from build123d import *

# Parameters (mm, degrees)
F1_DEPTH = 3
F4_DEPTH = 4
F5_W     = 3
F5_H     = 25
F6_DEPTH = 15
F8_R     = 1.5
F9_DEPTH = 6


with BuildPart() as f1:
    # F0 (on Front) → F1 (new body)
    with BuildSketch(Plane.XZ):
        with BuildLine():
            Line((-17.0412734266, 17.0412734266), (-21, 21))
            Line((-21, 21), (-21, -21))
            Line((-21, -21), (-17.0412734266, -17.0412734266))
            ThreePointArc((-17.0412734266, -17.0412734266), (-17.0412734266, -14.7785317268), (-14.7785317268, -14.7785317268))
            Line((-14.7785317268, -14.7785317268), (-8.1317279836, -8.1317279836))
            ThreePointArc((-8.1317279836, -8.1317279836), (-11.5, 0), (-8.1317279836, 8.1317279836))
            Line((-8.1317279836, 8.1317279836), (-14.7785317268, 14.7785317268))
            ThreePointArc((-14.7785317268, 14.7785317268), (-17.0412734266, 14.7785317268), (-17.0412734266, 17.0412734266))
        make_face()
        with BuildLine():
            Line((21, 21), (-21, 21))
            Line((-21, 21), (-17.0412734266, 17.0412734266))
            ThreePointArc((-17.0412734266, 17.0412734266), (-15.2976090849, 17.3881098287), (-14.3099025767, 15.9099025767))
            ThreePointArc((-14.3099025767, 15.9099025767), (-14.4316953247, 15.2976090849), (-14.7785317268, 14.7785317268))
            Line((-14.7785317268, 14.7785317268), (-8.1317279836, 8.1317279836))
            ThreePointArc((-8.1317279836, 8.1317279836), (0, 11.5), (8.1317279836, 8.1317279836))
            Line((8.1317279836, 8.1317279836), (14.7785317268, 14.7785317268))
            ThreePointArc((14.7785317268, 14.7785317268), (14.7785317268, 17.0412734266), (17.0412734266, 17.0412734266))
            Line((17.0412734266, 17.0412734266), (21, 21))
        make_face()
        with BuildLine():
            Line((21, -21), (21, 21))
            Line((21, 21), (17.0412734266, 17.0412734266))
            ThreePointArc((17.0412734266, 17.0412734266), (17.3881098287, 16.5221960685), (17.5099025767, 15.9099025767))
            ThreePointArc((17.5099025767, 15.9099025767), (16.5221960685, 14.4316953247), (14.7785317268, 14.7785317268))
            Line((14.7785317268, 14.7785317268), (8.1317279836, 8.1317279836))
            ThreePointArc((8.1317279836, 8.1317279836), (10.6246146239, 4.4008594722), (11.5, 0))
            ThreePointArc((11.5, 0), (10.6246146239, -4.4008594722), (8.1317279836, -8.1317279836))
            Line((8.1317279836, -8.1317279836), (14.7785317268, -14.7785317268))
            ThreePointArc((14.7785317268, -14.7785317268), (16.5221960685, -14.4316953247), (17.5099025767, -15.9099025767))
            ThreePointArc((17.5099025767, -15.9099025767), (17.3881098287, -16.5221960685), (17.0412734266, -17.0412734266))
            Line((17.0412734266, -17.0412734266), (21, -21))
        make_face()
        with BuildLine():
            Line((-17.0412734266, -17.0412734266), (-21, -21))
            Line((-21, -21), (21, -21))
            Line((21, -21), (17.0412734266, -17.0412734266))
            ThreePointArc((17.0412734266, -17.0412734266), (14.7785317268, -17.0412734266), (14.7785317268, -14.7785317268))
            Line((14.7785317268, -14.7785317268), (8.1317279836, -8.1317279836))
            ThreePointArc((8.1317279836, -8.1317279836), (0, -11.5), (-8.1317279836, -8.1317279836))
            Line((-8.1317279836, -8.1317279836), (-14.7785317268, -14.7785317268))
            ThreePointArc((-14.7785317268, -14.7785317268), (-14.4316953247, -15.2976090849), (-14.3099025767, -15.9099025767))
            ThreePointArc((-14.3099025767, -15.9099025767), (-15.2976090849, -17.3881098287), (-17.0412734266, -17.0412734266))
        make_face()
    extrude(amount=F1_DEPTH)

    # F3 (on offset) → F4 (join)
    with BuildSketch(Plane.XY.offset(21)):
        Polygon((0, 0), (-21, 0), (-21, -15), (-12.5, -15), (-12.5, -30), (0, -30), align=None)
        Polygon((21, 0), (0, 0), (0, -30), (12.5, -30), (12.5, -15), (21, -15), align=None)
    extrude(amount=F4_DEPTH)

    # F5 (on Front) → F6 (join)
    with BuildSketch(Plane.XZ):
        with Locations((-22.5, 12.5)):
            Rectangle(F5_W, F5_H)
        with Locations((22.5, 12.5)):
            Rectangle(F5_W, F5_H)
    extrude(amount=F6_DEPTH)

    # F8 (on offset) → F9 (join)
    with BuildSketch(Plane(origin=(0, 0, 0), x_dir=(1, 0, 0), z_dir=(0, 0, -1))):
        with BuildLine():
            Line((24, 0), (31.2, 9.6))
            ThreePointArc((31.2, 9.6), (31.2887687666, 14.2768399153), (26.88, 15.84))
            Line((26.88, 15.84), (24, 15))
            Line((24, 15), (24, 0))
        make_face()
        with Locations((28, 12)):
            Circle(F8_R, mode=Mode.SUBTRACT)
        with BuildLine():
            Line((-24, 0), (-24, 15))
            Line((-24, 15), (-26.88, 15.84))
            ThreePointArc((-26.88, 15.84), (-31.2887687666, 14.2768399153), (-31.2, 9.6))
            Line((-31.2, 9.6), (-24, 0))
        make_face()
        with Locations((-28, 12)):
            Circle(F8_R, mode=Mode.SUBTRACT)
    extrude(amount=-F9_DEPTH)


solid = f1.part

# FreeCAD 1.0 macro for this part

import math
import FreeCAD as App
import Part
import Sketcher

V = App.Vector
Q = App.Units.Quantity

doc = App.newDocument("Part")
body = doc.addObject("PartDesign::Body", "Body")

# Sketch on XZ plane
sketch1 = doc.addObject("Sketcher::SketchObject", "Sketch")
body.addObject(sketch1)
sketch1.AttachmentSupport = (doc.XZ_Plane, [""])
sketch1.MapMode = "FlatFace"
sketch1.addGeometry([
    Part.LineSegment(V(-21, 21, 0), V(-21, -21, 0)),  # 0
    Part.LineSegment(V(-21, -21, 0), V(21, -21, 0)),  # 1
    Part.LineSegment(V(21, -21, 0), V(21, 21, 0)),  # 2
    Part.LineSegment(V(21, 21, 0), V(-21, 21, 0)),  # 3
    Part.ArcOfCircle(Part.Circle(V(-15.9, -15.9, 0), V(0, 0, 1), 1.6), math.radians(45), math.radians(225)),  # 4
    Part.ArcOfCircle(Part.Circle(V(-15.9, -15.9, 0), V(0, 0, 1), 1.6), math.radians(0), math.radians(45)),  # 5
    Part.ArcOfCircle(Part.Circle(V(-15.9, -15.9, 0), V(0, 0, 1), 1.6), math.radians(-135), math.radians(0)),  # 6
    Part.ArcOfCircle(Part.Circle(V(0, 0, 0), V(0, 0, 1), 11.5), math.radians(135), math.radians(225)),  # 7
    Part.ArcOfCircle(Part.Circle(V(0, 0, 0), V(0, 0, 1), 11.5), math.radians(45), math.radians(135)),  # 8
    Part.ArcOfCircle(Part.Circle(V(0, 0, 0), V(0, 0, 1), 11.5), math.radians(0), math.radians(45)),  # 9
    Part.ArcOfCircle(Part.Circle(V(0, 0, 0), V(0, 0, 1), 11.5), math.radians(-45), math.radians(0)),  # 10
    Part.ArcOfCircle(Part.Circle(V(0, 0, 0), V(0, 0, 1), 11.5), math.radians(-135), math.radians(-45)),  # 11
    Part.ArcOfCircle(Part.Circle(V(15.9, -15.9, 0), V(0, 0, 1), 1.6), math.radians(0), math.radians(135)),  # 12
    Part.ArcOfCircle(Part.Circle(V(15.9, -15.9, 0), V(0, 0, 1), 1.6), math.radians(-45), math.radians(0)),  # 13
    Part.ArcOfCircle(Part.Circle(V(15.9, -15.9, 0), V(0, 0, 1), 1.6), math.radians(135), math.radians(315)),  # 14
    Part.ArcOfCircle(Part.Circle(V(15.9, 15.9, 0), V(0, 0, 1), 1.6), math.radians(45), math.radians(225)),  # 15
    Part.ArcOfCircle(Part.Circle(V(15.9, 15.9, 0), V(0, 0, 1), 1.6), math.radians(0), math.radians(45)),  # 16
    Part.ArcOfCircle(Part.Circle(V(15.9, 15.9, 0), V(0, 0, 1), 1.6), math.radians(-135), math.radians(0)),  # 17
    Part.ArcOfCircle(Part.Circle(V(-15.9, 15.9, 0), V(0, 0, 1), 1.6), math.radians(135), math.radians(315)),  # 18
    Part.ArcOfCircle(Part.Circle(V(-15.9, 15.9, 0), V(0, 0, 1), 1.6), math.radians(0), math.radians(135)),  # 19
    Part.ArcOfCircle(Part.Circle(V(-15.9, 15.9, 0), V(0, 0, 1), 1.6), math.radians(-45), math.radians(0)),  # 20
], False)
sketch1.addConstraint([
    Sketcher.Constraint("Coincident", 0, 2, 1, 1),
    Sketcher.Constraint("Coincident", 1, 2, 2, 1),
    Sketcher.Constraint("Coincident", 2, 2, 3, 1),
    Sketcher.Constraint("Coincident", 3, 2, 0, 1),
    Sketcher.Constraint("Tangent", 4, 1, 5, 2),
    Sketcher.Constraint("Tangent", 5, 1, 6, 2),
    Sketcher.Constraint("Tangent", 6, 1, 4, 2),
    Sketcher.Constraint("Tangent", 7, 1, 8, 2),
    Sketcher.Constraint("Tangent", 8, 1, 9, 2),
    Sketcher.Constraint("Tangent", 9, 1, 10, 2),
    Sketcher.Constraint("Tangent", 10, 1, 11, 2),
    Sketcher.Constraint("Tangent", 11, 1, 7, 2),
    Sketcher.Constraint("Tangent", 12, 1, 13, 2),
    Sketcher.Constraint("Tangent", 13, 1, 14, 2),
    Sketcher.Constraint("Tangent", 14, 1, 12, 2),
    Sketcher.Constraint("Tangent", 15, 1, 16, 2),
    Sketcher.Constraint("Tangent", 16, 1, 17, 2),
    Sketcher.Constraint("Tangent", 17, 1, 15, 2),
    Sketcher.Constraint("Tangent", 18, 1, 19, 2),
    Sketcher.Constraint("Tangent", 19, 1, 20, 2),
    Sketcher.Constraint("Tangent", 20, 1, 18, 2),
    Sketcher.Constraint("Vertical", 0),
    Sketcher.Constraint("Horizontal", 1),
    Sketcher.Constraint("Vertical", 2),
    Sketcher.Constraint("Horizontal", 3),
    Sketcher.Constraint("Coincident", 7, 3, -1, 1),
    Sketcher.Constraint("Coincident", 9, 3, -1, 1),
    Sketcher.Constraint("Equal", 6, 12),
    Sketcher.Constraint("Equal", 14, 15),
    Sketcher.Constraint("Equal", 17, 18),
    Sketcher.Constraint("Symmetric", 4, 3, 15, 3, -1, 1),
    Sketcher.Constraint("Symmetric", 12, 3, 18, 3, -1, 1),
    Sketcher.Constraint("Symmetric", 0, 2, 2, 2, -1, 1),
    Sketcher.Constraint("Symmetric", 4, 3, 12, 3, -2),
    Sketcher.Constraint("PointOnObject", 9, 1, -1),
    Sketcher.Constraint("Horizontal", 14, 3, 5, 1),
    Sketcher.Constraint("Horizontal", 7, 1, 8, 1),
    Sketcher.Constraint("Horizontal", 10, 1, 11, 1),
    Sketcher.Constraint("Horizontal", 5, 1, 12, 1),
    Sketcher.Constraint("Horizontal", 6, 1, 13, 1),
    Sketcher.Constraint("Horizontal", 4, 1, 14, 1),
    Sketcher.Constraint("Horizontal", 20, 3, 16, 1),
    Sketcher.Constraint("Horizontal", 15, 1, 18, 1),
    Sketcher.Constraint("Horizontal", 16, 1, 19, 1),
    Sketcher.Constraint("Horizontal", 17, 1, 20, 1),
    Sketcher.Constraint("Vertical", 8, 1, 10, 1),
    Sketcher.Constraint("Vertical", 13, 1, 15, 1),
    Sketcher.Constraint("Vertical", 14, 1, 17, 1),
    Sketcher.Constraint("Equal", 3, 0),
    Sketcher.Constraint("Radius", 4, Q("1.6 mm")),
    Sketcher.Constraint("Radius", 7, Q("11.5 mm")),
    Sketcher.Constraint("DistanceX", 1, 1, 1, 2, Q("42 mm")),
    Sketcher.Constraint("DistanceX", 4, 1, -1, 1, Q("14.778532 mm")),
    Sketcher.Constraint("DistanceY", 4, 1, -1, 1, Q("14.778532 mm")),
    Sketcher.Constraint("DistanceX", 4, 3, 4, 1, Q("1.131371 mm")),
    Sketcher.Constraint("DistanceX", 6, 1, 4, 3, Q("1.131371 mm")),
    Sketcher.Constraint("DistanceX", 7, 1, -1, 1, Q("8.131728 mm")),
])
pad1 = doc.addObject("PartDesign::Pad", "Pad")
body.addObject(pad1)
pad1.Profile = sketch1
pad1.Length = 3

# Sketch on XY plane
sketch2 = doc.addObject("Sketcher::SketchObject", "Sketch001")
body.addObject(sketch2)
sketch2.AttachmentSupport = (doc.XY_Plane, [""])
sketch2.MapMode = "FlatFace"
sketch2.AttachmentOffset = App.Placement(V(0, 0, 21), App.Rotation())
sketch2.addGeometry([
    Part.LineSegment(V(-21, 0, 0), V(-21, -15, 0)),  # 0
    Part.LineSegment(V(-21, -15, 0), V(-12, -15, 0)),  # 1
    Part.LineSegment(V(-12, -15, 0), V(-12, -30, 0)),  # 2
    Part.LineSegment(V(-12, -30, 0), V(12, -30, 0)),  # 3
    Part.LineSegment(V(12, -30, 0), V(12, -15, 0)),  # 4
    Part.LineSegment(V(12, -15, 0), V(21, -15, 0)),  # 5
    Part.LineSegment(V(21, -15, 0), V(21, 0, 0)),  # 6
    Part.LineSegment(V(21, 0, 0), V(-21, 0, 0)),  # 7
], False)
sketch2.addConstraint([
    Sketcher.Constraint("Coincident", 0, 2, 1, 1),
    Sketcher.Constraint("Coincident", 1, 2, 2, 1),
    Sketcher.Constraint("Coincident", 2, 2, 3, 1),
    Sketcher.Constraint("Coincident", 3, 2, 4, 1),
    Sketcher.Constraint("Coincident", 4, 2, 5, 1),
    Sketcher.Constraint("Coincident", 5, 2, 6, 1),
    Sketcher.Constraint("Coincident", 6, 2, 7, 1),
    Sketcher.Constraint("Coincident", 7, 2, 0, 1),
    Sketcher.Constraint("Vertical", 0),
    Sketcher.Constraint("Horizontal", 1),
    Sketcher.Constraint("Vertical", 2),
    Sketcher.Constraint("Horizontal", 3),
    Sketcher.Constraint("Vertical", 4),
    Sketcher.Constraint("Horizontal", 5),
    Sketcher.Constraint("Vertical", 6),
    Sketcher.Constraint("Horizontal", 7),
    Sketcher.Constraint("Symmetric", 6, 2, 7, 2, -1, 1),
    Sketcher.Constraint("Symmetric", 1, 2, 4, 2, -2),
    Sketcher.Constraint("Equal", 0, 2),
    Sketcher.Constraint("DistanceX", 3, 1, 3, 2, Q("25 mm")),
    Sketcher.Constraint("DistanceX", 7, 2, 7, 1, Q("42 mm")),
    Sketcher.Constraint("DistanceY", 0, 2, 0, 1, Q("15 mm")),
])
pad2 = doc.addObject("PartDesign::Pad", "Pad001")
body.addObject(pad2)
pad2.Profile = sketch2
pad2.Length = 4

# Sketch on XZ plane
sketch3 = doc.addObject("Sketcher::SketchObject", "Sketch002")
body.addObject(sketch3)
sketch3.AttachmentSupport = (doc.XZ_Plane, [""])
sketch3.MapMode = "FlatFace"
sketch3.addGeometry([
    Part.LineSegment(V(-24, 25, 0), V(-24, 0, 0)),  # 0
    Part.LineSegment(V(-24, 0, 0), V(-21, 0, 0)),  # 1
    Part.LineSegment(V(-21, 0, 0), V(-21, 25, 0)),  # 2
    Part.LineSegment(V(-21, 25, 0), V(-24, 25, 0)),  # 3
    Part.LineSegment(V(21, 25, 0), V(21, 0, 0)),  # 4
    Part.LineSegment(V(21, 0, 0), V(24, 0, 0)),  # 5
    Part.LineSegment(V(24, 0, 0), V(24, 25, 0)),  # 6
    Part.LineSegment(V(24, 25, 0), V(21, 25, 0)),  # 7
], False)
sketch3.addConstraint([
    Sketcher.Constraint("Coincident", 0, 2, 1, 1),
    Sketcher.Constraint("Coincident", 1, 2, 2, 1),
    Sketcher.Constraint("Coincident", 2, 2, 3, 1),
    Sketcher.Constraint("Coincident", 3, 2, 0, 1),
    Sketcher.Constraint("Coincident", 4, 2, 5, 1),
    Sketcher.Constraint("Coincident", 5, 2, 6, 1),
    Sketcher.Constraint("Coincident", 6, 2, 7, 1),
    Sketcher.Constraint("Coincident", 7, 2, 4, 1),
    Sketcher.Constraint("Vertical", 0),
    Sketcher.Constraint("Horizontal", 1),
    Sketcher.Constraint("Vertical", 2),
    Sketcher.Constraint("Horizontal", 3),
    Sketcher.Constraint("Vertical", 4),
    Sketcher.Constraint("Horizontal", 5),
    Sketcher.Constraint("Vertical", 6),
    Sketcher.Constraint("Horizontal", 7),
    Sketcher.Constraint("Symmetric", 1, 2, 4, 2, -1, 1),
    Sketcher.Constraint("Symmetric", 0, 2, 5, 2, -2),
    Sketcher.Constraint("Horizontal", 3, 2, 6, 2),
    Sketcher.Constraint("DistanceX", 1, 1, 1, 2, Q("3 mm")),
    Sketcher.Constraint("DistanceY", 0, 2, 0, 1, Q("25 mm")),
    Sketcher.Constraint("DistanceX", 0, 2, -1, 1, Q("24 mm")),
])
pad3 = doc.addObject("PartDesign::Pad", "Pad002")
body.addObject(pad3)
pad3.Profile = sketch3
pad3.Length = 15

# Sketch on XY plane
sketch4 = doc.addObject("Sketcher::SketchObject", "Sketch003")
body.addObject(sketch4)
sketch4.AttachmentSupport = (doc.XY_Plane, [""])
sketch4.MapMode = "FlatFace"
sketch4.addGeometry([
    Part.LineSegment(V(24, 0, 0), V(31.2, -9.6, 0)),  # 0
    Part.ArcOfCircle(Part.Circle(V(28, -12, 0), V(0, 0, 1), 4), math.radians(-106), math.radians(37)),  # 1
    Part.LineSegment(V(26.9, -15.8, 0), V(24, -15, 0)),  # 2
    Part.LineSegment(V(24, -15, 0), V(24, 0, 0)),  # 3
    Part.Circle(V(28, -12, 0), V(0, 0, 1), 1.5),  # 4
    Part.LineSegment(V(-24, 0, 0), V(-24, -15, 0)),  # 5
    Part.LineSegment(V(-24, -15, 0), V(-26.9, -15.8, 0)),  # 6
    Part.ArcOfCircle(Part.Circle(V(-28, -12, 0), V(0, 0, 1), 4), math.radians(143), math.radians(286)),  # 7
    Part.LineSegment(V(-31.2, -9.6, 0), V(-24, 0, 0)),  # 8
    Part.Circle(V(-28, -12, 0), V(0, 0, 1), 1.5),  # 9
], False)
sketch4.addConstraint([
    Sketcher.Constraint("Tangent", 0, 2, 1, 2),
    Sketcher.Constraint("Tangent", 1, 1, 2, 1),
    Sketcher.Constraint("Coincident", 2, 2, 3, 1),
    Sketcher.Constraint("Coincident", 3, 2, 0, 1),
    Sketcher.Constraint("Coincident", 5, 2, 6, 1),
    Sketcher.Constraint("Tangent", 6, 2, 7, 2),
    Sketcher.Constraint("Tangent", 7, 1, 8, 1),
    Sketcher.Constraint("Coincident", 8, 2, 5, 1),
    Sketcher.Constraint("Vertical", 3),
    Sketcher.Constraint("Vertical", 5),
    Sketcher.Constraint("Coincident", 4, 3, 1, 3),
    Sketcher.Constraint("Coincident", 9, 3, 7, 3),
    Sketcher.Constraint("Equal", 1, 7),
    Sketcher.Constraint("Equal", 4, 9),
    Sketcher.Constraint("Symmetric", 3, 2, 8, 2, -1, 1),
    Sketcher.Constraint("Symmetric", 1, 3, 7, 3, -2),
    Sketcher.Constraint("PointOnObject", 3, 2, -1),
    Sketcher.Constraint("Horizontal", 2, 2, 5, 2),
    Sketcher.Constraint("Diameter", 4, Q("3 mm")),
    Sketcher.Constraint("Radius", 1, Q("4 mm")),
    Sketcher.Constraint("DistanceY", 3, 1, 3, 2, Q("15 mm")),
    Sketcher.Constraint("Distance", 0, Q("12 mm")),
    Sketcher.Constraint("Distance", 2, Q("3 mm")),
    Sketcher.Constraint("DistanceX", -1, 1, 1, 3, Q("28 mm")),
])
pad4 = doc.addObject("PartDesign::Pad", "Pad003")
body.addObject(pad4)
pad4.Profile = sketch4
pad4.Length = 6

doc.recompute()
